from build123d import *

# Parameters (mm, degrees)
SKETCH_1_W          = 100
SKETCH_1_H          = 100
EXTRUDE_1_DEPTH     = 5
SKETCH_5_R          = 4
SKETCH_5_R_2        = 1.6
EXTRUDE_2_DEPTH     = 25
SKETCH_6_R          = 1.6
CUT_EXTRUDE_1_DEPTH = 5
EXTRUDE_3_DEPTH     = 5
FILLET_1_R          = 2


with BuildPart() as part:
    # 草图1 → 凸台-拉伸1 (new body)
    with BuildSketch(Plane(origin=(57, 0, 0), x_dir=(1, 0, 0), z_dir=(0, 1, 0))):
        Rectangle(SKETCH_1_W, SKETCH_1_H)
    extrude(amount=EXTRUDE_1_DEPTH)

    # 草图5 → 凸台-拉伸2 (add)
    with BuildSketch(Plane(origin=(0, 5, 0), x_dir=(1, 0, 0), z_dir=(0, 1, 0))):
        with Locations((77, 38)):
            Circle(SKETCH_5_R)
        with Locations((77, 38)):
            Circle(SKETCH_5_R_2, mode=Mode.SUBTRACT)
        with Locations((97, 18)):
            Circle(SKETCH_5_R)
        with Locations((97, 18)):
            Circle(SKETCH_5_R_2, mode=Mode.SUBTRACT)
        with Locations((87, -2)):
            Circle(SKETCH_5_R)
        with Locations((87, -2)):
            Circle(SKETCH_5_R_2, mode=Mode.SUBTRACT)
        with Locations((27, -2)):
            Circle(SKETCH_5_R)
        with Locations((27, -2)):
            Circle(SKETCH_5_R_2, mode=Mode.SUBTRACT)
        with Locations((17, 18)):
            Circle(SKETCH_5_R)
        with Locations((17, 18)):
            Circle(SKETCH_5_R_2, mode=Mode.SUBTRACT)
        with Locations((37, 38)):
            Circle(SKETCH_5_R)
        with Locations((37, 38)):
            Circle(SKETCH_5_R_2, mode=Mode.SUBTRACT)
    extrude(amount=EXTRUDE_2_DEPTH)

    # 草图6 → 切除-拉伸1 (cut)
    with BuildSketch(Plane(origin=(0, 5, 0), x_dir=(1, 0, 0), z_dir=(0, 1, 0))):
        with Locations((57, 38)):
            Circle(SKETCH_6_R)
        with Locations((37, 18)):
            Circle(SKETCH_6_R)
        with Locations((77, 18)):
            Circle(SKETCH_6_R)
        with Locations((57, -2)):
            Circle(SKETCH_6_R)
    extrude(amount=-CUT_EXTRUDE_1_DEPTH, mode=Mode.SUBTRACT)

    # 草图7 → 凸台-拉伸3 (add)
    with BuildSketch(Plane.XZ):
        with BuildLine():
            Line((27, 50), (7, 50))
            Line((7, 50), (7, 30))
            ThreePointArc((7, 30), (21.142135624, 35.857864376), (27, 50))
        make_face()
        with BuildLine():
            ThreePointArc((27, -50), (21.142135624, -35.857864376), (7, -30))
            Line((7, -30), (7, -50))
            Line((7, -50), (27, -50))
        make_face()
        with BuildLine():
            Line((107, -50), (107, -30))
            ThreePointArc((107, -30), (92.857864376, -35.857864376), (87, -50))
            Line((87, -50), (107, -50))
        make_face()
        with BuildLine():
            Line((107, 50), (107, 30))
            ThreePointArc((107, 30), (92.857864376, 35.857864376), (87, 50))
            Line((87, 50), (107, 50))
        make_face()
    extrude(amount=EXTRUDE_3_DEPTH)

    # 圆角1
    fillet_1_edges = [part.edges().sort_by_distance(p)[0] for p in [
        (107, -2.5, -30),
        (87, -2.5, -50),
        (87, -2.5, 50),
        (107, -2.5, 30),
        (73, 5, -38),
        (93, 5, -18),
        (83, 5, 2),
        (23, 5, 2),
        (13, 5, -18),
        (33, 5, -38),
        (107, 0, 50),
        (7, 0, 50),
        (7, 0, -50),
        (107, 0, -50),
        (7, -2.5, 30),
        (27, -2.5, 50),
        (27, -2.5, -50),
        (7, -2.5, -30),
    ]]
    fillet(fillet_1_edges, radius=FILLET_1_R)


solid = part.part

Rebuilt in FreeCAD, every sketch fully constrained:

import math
import FreeCAD as App
import Part
import Sketcher
Q = App.Units.Quantity


def edges_at(feature, points):
    """Names of the edges that pass closest to the given points."""
    edges = feature.Shape.Edges
    near = lambda p: min(range(len(edges)), key=lambda i: edges[i].distToShape(Part.Vertex(*p))[0])
    return sorted({f"Edge{near(p) + 1}" for p in points})


def add_polygon(sketch, points):
    """Adds a closed chain of lines whose ends are joined by coincident constraints."""
    first, n = sketch.GeometryCount, len(points)
    for a, b in zip(points, points[1:] + points[:1]):
        sketch.addGeometry(Part.LineSegment(App.Vector(*a, 0), App.Vector(*b, 0)), False)
    for i in range(n):
        sketch.addConstraint(Sketcher.Constraint("Coincident", first + i, 2, first + (i + 1) % n, 1))

doc = App.newDocument("Part")
body = doc.addObject("PartDesign::Body", "Body")

sketch1 = body.newObject("Sketcher::SketchObject", "Sketch")
sketch1.AttachmentSupport = (doc.getObject("XZ_Plane"), [""])
sketch1.MapMode = "FlatFace"
add_polygon(sketch1, [(7, -50), (7, 50), (107, 50), (107, -50)])
sketch1.addConstraint([
    Sketcher.Constraint("Vertical", 0),
    Sketcher.Constraint("Horizontal", 1),
    Sketcher.Constraint("Vertical", 2),
    Sketcher.Constraint("Horizontal", 3),
    Sketcher.Constraint("Equal", 3, 0),
    Sketcher.Constraint("DistanceX", 1, 1, 1, 2, Q("100 mm")),
    Sketcher.Constraint("DistanceX", -1, 1, 0, 2, Q("7 mm")),
    Sketcher.Constraint("DistanceY", -1, 1, 0, 2, Q("50 mm")),
])
pad1 = body.newObject("PartDesign::Pad", "Pad")
pad1.Profile = sketch1
pad1.Length = 5
pad1.Reversed = True

sketch2 = body.newObject("Sketcher::SketchObject", "Sketch001")
sketch2.AttachmentSupport = (doc.getObject("XZ_Plane"), [""])
sketch2.MapMode = "FlatFace"
sketch2.AttachmentOffset = App.Placement(App.Vector(0, 0, -5), App.Rotation())
sketch2.addGeometry([
    Part.Circle(App.Vector(77, -38, 0), App.Vector(0, 0, 1), 4),
    Part.Circle(App.Vector(77, -38, 0), App.Vector(0, 0, 1), 1.6),
    Part.Circle(App.Vector(97, -18, 0), App.Vector(0, 0, 1), 4),
    Part.Circle(App.Vector(97, -18, 0), App.Vector(0, 0, 1), 1.6),
    Part.Circle(App.Vector(87, 2, 0), App.Vector(0, 0, 1), 4),
    Part.Circle(App.Vector(87, 2, 0), App.Vector(0, 0, 1), 1.6),
    Part.Circle(App.Vector(27, 2, 0), App.Vector(0, 0, 1), 4),
    Part.Circle(App.Vector(27, 2, 0), App.Vector(0, 0, 1), 1.6),
    Part.Circle(App.Vector(17, -18, 0), App.Vector(0, 0, 1), 4),
    Part.Circle(App.Vector(17, -18, 0), App.Vector(0, 0, 1), 1.6),
    Part.Circle(App.Vector(37, -38, 0), App.Vector(0, 0, 1), 4),
    Part.Circle(App.Vector(37, -38, 0), App.Vector(0, 0, 1), 1.6),
], False)
sketch2.addConstraint([
    Sketcher.Constraint("Coincident", 1, 3, 0, 3),
    Sketcher.Constraint("Coincident", 3, 3, 2, 3),
    Sketcher.Constraint("Coincident", 5, 3, 4, 3),
    Sketcher.Constraint("Coincident", 7, 3, 6, 3),
    Sketcher.Constraint("Coincident", 9, 3, 8, 3),
    Sketcher.Constraint("Coincident", 11, 3, 10, 3),
    Sketcher.Constraint("Equal", 0, 2),
    Sketcher.Constraint("Equal", 1, 3),
    Sketcher.Constraint("Equal", 2, 4),
    Sketcher.Constraint("Equal", 3, 5),
    Sketcher.Constraint("Equal", 4, 6),
    Sketcher.Constraint("Equal", 5, 7),
    Sketcher.Constraint("Equal", 6, 8),
    Sketcher.Constraint("Equal", 7, 9),
    Sketcher.Constraint("Equal", 8, 10),
    Sketcher.Constraint("Equal", 9, 11),
    Sketcher.Constraint("Horizontal", 5, 3, 6, 3),
    Sketcher.Constraint("Horizontal", 3, 3, 8, 3),
    Sketcher.Constraint("Horizontal", 1, 3, 10, 3),
    Sketcher.Constraint("Diameter", 0, Q("8 mm")),
    Sketcher.Constraint("Diameter", 1, Q("3.2 mm")),
    Sketcher.Constraint("DistanceX", -1, 1, 0, 3, Q("77 mm")),
    Sketcher.Constraint("DistanceY", 0, 3, -1, 1, Q("38 mm")),
    Sketcher.Constraint("DistanceX", -1, 1, 2, 3, Q("97 mm")),
    Sketcher.Constraint("DistanceY", 2, 3, -1, 1, Q("18 mm")),
    Sketcher.Constraint("DistanceX", -1, 1, 4, 3, Q("87 mm")),
    Sketcher.Constraint("DistanceY", -1, 1, 4, 3, Q("2 mm")),
    Sketcher.Constraint("DistanceX", -1, 1, 6, 3, Q("27 mm")),
    Sketcher.Constraint("DistanceX", -1, 1, 8, 3, Q("17 mm")),
    Sketcher.Constraint("DistanceX", -1, 1, 10, 3, Q("37 mm")),
])
pad2 = body.newObject("PartDesign::Pad", "Pad001")
pad2.Profile = sketch2
pad2.Length = 25
pad2.Reversed = True

sketch3 = body.newObject("Sketcher::SketchObject", "Sketch002")
sketch3.AttachmentSupport = (doc.getObject("XZ_Plane"), [""])
sketch3.MapMode = "FlatFace"
sketch3.AttachmentOffset = App.Placement(App.Vector(0, 0, -5), App.Rotation())
sketch3.addGeometry([
    Part.Circle(App.Vector(57, -38, 0), App.Vector(0, 0, 1), 1.6),
    Part.Circle(App.Vector(37, -18, 0), App.Vector(0, 0, 1), 1.6),
    Part.Circle(App.Vector(77, -18, 0), App.Vector(0, 0, 1), 1.6),
    Part.Circle(App.Vector(57, 2, 0), App.Vector(0, 0, 1), 1.6),
], False)
sketch3.addConstraint([
    Sketcher.Constraint("Equal", 0, 1),
    Sketcher.Constraint("Equal", 1, 2),
    Sketcher.Constraint("Equal", 2, 3),
    Sketcher.Constraint("Horizontal", 1, 3, 2, 3),
    Sketcher.Constraint("Vertical", 0, 3, 3, 3),
    Sketcher.Constraint("Diameter", 0, Q("3.2 mm")),
    Sketcher.Constraint("DistanceX", -1, 1, 0, 3, Q("57 mm")),
    Sketcher.Constraint("DistanceY", 0, 3, -1, 1, Q("38 mm")),
    Sketcher.Constraint("DistanceX", -1, 1, 1, 3, Q("37 mm")),
    Sketcher.Constraint("DistanceY", 1, 3, -1, 1, Q("18 mm")),
    Sketcher.Constraint("DistanceX", -1, 1, 2, 3, Q("77 mm")),
    Sketcher.Constraint("DistanceY", -1, 1, 3, 3, Q("2 mm")),
])
pocket1 = body.newObject("PartDesign::Pocket", "Pocket")
pocket1.Profile = sketch3
pocket1.Length = 5
pocket1.Reversed = True

sketch4 = body.newObject("Sketcher::SketchObject", "Sketch003")
sketch4.AttachmentSupport = (doc.getObject("XZ_Plane"), [""])
sketch4.MapMode = "FlatFace"
sketch4.addGeometry([
    Part.LineSegment(App.Vector(27, 50, 0), App.Vector(7, 50, 0)),
    Part.LineSegment(App.Vector(7, 50, 0), App.Vector(7, 30, 0)),
    Part.ArcOfCircle(Part.Circle(App.Vector(7, 50, 0), App.Vector(0, 0, 1), 20), math.radians(-90), math.radians(0)),
    Part.ArcOfCircle(Part.Circle(App.Vector(7, -50, 0), App.Vector(0, 0, 1), 20), math.radians(0), math.radians(90)),
    Part.LineSegment(App.Vector(7, -30, 0), App.Vector(7, -50, 0)),
    Part.LineSegment(App.Vector(7, -50, 0), App.Vector(27, -50, 0)),
    Part.LineSegment(App.Vector(107, -50, 0), App.Vector(107, -30, 0)),
    Part.ArcOfCircle(Part.Circle(App.Vector(107, -50, 0), App.Vector(0, 0, 1), 20), math.radians(90), math.radians(180)),
    Part.LineSegment(App.Vector(87, -50, 0), App.Vector(107, -50, 0)),
    Part.LineSegment(App.Vector(107, 30, 0), App.Vector(107, 50, 0)),
    Part.LineSegment(App.Vector(107, 50, 0), App.Vector(87, 50, 0)),
    Part.ArcOfCircle(Part.Circle(App.Vector(107, 50, 0), App.Vector(0, 0, 1), 20), math.radians(180), math.radians(270)),
], False)
sketch4.addConstraint([
    Sketcher.Constraint("Coincident", 0, 2, 1, 1),
    Sketcher.Constraint("Coincident", 1, 2, 2, 1),
    Sketcher.Constraint("Coincident", 2, 2, 0, 1),
    Sketcher.Constraint("Coincident", 3, 2, 4, 1),
    Sketcher.Constraint("Coincident", 4, 2, 5, 1),
    Sketcher.Constraint("Coincident", 5, 2, 3, 1),
    Sketcher.Constraint("Coincident", 6, 2, 7, 1),
    Sketcher.Constraint("Coincident", 7, 2, 8, 1),
    Sketcher.Constraint("Coincident", 8, 2, 6, 1),
    Sketcher.Constraint("Coincident", 9, 2, 10, 1),
    Sketcher.Constraint("Coincident", 10, 2, 11, 1),
    Sketcher.Constraint("Coincident", 11, 2, 9, 1),
    Sketcher.Constraint("Horizontal", 0),
    Sketcher.Constraint("Vertical", 1),
    Sketcher.Constraint("Vertical", 4),
    Sketcher.Constraint("Horizontal", 5),
    Sketcher.Constraint("Vertical", 6),
    Sketcher.Constraint("Horizontal", 8),
    Sketcher.Constraint("Vertical", 9),
    Sketcher.Constraint("Horizontal", 10),
    Sketcher.Constraint("Coincident", 0, 2, 2, 3),
    Sketcher.Constraint("Coincident", 4, 2, 3, 3),
    Sketcher.Constraint("Coincident", 8, 2, 7, 3),
    Sketcher.Constraint("Coincident", 9, 2, 11, 3),
    Sketcher.Constraint("Equal", 2, 3),
    Sketcher.Constraint("Equal", 3, 7),
    Sketcher.Constraint("Equal", 7, 11),
    Sketcher.Constraint("Symmetric", 2, 3, 3, 3, -1),
    Sketcher.Constraint("Symmetric", 7, 3, 11, 3, -1),
    Sketcher.Constraint("Horizontal", 3, 3, 7, 3),
    Sketcher.Constraint("Radius", 2, Q("20 mm")),
    Sketcher.Constraint("DistanceX", -1, 1, 2, 3, Q("7 mm")),
    Sketcher.Constraint("DistanceY", -1, 1, 2, 3, Q("50 mm")),
    Sketcher.Constraint("DistanceX", -1, 1, 7, 3, Q("107 mm")),
])
pad3 = body.newObject("PartDesign::Pad", "Pad002")
pad3.Profile = sketch4
pad3.Length = 5
doc.recompute()

fillet = body.newObject("PartDesign::Fillet", "Fillet")
fillet.Base = (pad3, edges_at(pad3, [
    (107, -2.5, -30),
    (87, -2.5, -50),
    (87, -2.5, 50),
    (107, -2.5, 30),
    (73, 5, -38),
    (93, 5, -18),
    (83, 5, 2),
    (23, 5, 2),
    (13, 5, -18),
    (33, 5, -38),
    (107, 0, 50),
    (7, 0, 50),
    (7, 0, -50),
    (107, 0, -50),
    (7, -2.5, 30),
    (27, -2.5, 50),
    (27, -2.5, -50),
    (7, -2.5, -30),
]))
fillet.Radius = 2

doc.recompute()
